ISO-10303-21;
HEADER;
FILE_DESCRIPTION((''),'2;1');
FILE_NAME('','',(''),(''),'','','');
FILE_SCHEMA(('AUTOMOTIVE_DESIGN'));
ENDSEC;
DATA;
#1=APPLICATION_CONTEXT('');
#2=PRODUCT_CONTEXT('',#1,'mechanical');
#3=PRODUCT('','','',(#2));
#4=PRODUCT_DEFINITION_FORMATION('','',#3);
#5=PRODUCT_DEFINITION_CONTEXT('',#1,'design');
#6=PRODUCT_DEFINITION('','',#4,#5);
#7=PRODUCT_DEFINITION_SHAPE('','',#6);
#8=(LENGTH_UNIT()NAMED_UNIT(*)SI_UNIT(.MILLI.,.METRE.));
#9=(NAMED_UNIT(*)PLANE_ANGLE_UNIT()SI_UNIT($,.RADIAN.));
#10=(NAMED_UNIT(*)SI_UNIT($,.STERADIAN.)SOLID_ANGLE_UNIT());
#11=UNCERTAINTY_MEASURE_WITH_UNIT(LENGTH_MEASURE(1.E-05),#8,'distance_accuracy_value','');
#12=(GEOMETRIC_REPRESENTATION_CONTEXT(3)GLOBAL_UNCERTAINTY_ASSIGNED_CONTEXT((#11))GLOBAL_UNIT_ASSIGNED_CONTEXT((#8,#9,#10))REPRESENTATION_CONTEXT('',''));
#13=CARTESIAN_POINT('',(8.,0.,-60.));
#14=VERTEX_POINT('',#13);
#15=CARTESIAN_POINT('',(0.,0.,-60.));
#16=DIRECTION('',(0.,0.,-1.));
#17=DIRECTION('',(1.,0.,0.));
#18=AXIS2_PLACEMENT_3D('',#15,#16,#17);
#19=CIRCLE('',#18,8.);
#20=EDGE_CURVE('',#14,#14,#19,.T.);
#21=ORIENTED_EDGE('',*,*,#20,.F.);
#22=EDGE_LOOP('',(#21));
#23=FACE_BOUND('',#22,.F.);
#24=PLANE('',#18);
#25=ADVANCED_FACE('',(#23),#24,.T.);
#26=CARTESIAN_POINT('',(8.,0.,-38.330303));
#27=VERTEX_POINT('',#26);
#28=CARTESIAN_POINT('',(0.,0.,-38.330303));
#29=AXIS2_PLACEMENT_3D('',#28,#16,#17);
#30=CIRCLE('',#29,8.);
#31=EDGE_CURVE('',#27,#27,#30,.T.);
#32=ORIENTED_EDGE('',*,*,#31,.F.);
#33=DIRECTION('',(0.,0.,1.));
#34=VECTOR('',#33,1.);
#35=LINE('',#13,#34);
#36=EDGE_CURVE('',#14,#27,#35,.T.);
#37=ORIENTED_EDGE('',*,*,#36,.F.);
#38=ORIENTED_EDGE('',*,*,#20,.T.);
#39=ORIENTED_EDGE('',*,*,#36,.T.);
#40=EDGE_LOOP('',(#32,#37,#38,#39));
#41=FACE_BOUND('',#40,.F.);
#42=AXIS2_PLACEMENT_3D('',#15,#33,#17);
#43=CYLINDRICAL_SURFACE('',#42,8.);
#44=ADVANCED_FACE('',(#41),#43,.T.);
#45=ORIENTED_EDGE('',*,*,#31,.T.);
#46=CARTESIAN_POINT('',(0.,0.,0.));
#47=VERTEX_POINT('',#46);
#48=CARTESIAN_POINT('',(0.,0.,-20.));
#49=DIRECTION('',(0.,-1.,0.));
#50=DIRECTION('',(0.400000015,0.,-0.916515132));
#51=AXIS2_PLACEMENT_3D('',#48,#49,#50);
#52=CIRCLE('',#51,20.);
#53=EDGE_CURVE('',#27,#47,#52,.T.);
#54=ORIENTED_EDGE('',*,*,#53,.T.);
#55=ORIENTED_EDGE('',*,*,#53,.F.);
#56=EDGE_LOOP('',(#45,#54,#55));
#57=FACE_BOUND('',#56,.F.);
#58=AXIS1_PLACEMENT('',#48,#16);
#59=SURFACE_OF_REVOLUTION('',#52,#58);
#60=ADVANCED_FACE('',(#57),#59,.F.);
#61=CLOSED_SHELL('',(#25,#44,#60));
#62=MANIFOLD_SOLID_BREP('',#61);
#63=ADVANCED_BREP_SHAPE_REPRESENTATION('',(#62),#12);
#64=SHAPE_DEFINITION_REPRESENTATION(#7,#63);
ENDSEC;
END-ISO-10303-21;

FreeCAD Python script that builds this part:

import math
import FreeCAD as App
import Part
import Sketcher
from FreeCAD import Vector
Q = App.Units.Quantity

doc = App.newDocument("Part")
body = doc.addObject("PartDesign::Body", "Body")

# Sketch on XZ plane
sketch1 = body.newObject("Sketcher::SketchObject", "Sketch")
sketch1.AttachmentSupport = (doc.getObject("XZ_Plane"), [""])
sketch1.MapMode = "FlatFace"
sketch1.addGeometry([
    Part.LineSegment(Vector(0, 0, 0), Vector(0, -60, 0)),
    Part.LineSegment(Vector(0, -60, 0), Vector(8, -60, 0)),
    Part.LineSegment(Vector(8, -60, 0), Vector(8, -38.330303, 0)),
    Part.ArcOfCircle(Part.Circle(Vector(0, -20, 0), Vector(0, 0, 1), 20), math.radians(-66.421821), math.radians(89.999999)),
], False)
sketch1.addConstraint([
    Sketcher.Constraint("Coincident", 0, 2, 1, 1),
    Sketcher.Constraint("Coincident", 1, 2, 2, 1),
    Sketcher.Constraint("Coincident", 2, 2, 3, 1),
    Sketcher.Constraint("Coincident", 3, 2, 0, 1),
    Sketcher.Constraint("Vertical", 0),
    Sketcher.Constraint("Horizontal", 1),
    Sketcher.Constraint("Vertical", 2),
    Sketcher.Constraint("Coincident", 3, 2, -1, 1),
    Sketcher.Constraint("PointOnObject", 3, 3, -2),
    Sketcher.Constraint("Radius", 3, Q("20 mm")),
    Sketcher.Constraint("DistanceX", 1, 1, 1, 2, Q("8 mm")),
    Sketcher.Constraint("DistanceY", 0, 2, 0, 1, Q("60 mm")),
])
revolution = body.newObject("PartDesign::Revolution", "Revolution")
revolution.Profile = sketch1
revolution.ReferenceAxis = (sketch1, ["V_Axis"])
revolution.Angle = 360

doc.recompute()
